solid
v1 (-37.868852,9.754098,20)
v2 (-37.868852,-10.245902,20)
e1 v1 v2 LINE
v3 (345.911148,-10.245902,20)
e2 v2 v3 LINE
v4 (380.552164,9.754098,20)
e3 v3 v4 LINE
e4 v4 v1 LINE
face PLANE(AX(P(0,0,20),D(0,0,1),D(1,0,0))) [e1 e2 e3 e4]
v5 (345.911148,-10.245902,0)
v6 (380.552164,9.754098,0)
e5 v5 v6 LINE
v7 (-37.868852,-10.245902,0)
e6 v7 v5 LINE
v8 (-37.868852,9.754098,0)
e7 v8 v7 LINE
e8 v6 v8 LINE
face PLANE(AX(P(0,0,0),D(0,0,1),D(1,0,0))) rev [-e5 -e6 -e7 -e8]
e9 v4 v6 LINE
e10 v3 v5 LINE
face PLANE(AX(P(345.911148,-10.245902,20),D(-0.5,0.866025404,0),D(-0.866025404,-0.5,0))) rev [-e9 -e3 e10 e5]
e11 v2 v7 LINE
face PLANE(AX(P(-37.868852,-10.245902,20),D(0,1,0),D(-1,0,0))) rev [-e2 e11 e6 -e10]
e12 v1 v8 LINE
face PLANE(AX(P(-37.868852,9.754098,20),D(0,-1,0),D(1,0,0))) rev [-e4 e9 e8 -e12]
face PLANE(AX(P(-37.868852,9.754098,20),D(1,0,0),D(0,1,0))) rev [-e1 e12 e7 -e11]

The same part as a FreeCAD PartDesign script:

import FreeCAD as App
import Part
import Sketcher
Q = App.Units.Quantity

doc = App.newDocument("Part")
body = doc.addObject("PartDesign::Body", "Body")

# Sketch on XY plane
sketch1 = body.newObject("Sketcher::SketchObject", "Sketch")
sketch1.AttachmentSupport = (doc.getObject("XY_Plane"), [""])
sketch1.MapMode = "FlatFace"
sketch1.addGeometry(Part.LineSegment(App.Vector(-38, -10, 0), App.Vector(346, -10, 0)), False)
sketch1.addGeometry(Part.LineSegment(App.Vector(346, -10, 0), App.Vector(381, 10, 0)), False)
sketch1.addGeometry(Part.LineSegment(App.Vector(381, 10, 0), App.Vector(-38, 10, 0)), False)
sketch1.addGeometry(Part.LineSegment(App.Vector(-38, 10, 0), App.Vector(-38, -10, 0)), False)
sketch1.addConstraint(Sketcher.Constraint("Coincident", 0, 2, 1, 1))
sketch1.addConstraint(Sketcher.Constraint("Coincident", 1, 2, 2, 1))
sketch1.addConstraint(Sketcher.Constraint("Coincident", 2, 2, 3, 1))
sketch1.addConstraint(Sketcher.Constraint("Coincident", 3, 2, 0, 1))
sketch1.addConstraint(Sketcher.Constraint("Horizontal", 0))
sketch1.addConstraint(Sketcher.Constraint("Horizontal", 2))
sketch1.addConstraint(Sketcher.Constraint("Vertical", 3))
sketch1.addConstraint(Sketcher.Constraint("DistanceY", 3, 2, 3, 1, 20.0))
sketch1.addConstraint(Sketcher.Constraint("Angle", 1, Q("30 deg")))
sketch1.addConstraint(Sketcher.Constraint("DistanceX", 0, 1, 0, 2, 383.78))
sketch1.addConstraint(Sketcher.Constraint("DistanceY", 0, 2, -1, 1, 10.245902))
sketch1.addConstraint(Sketcher.Constraint("DistanceX", -1, 1, 0, 2, 345.911148))
pad1 = body.newObject("PartDesign::Pad", "Pad")
pad1.Profile = sketch1
pad1.Length = 20

doc.recompute()
